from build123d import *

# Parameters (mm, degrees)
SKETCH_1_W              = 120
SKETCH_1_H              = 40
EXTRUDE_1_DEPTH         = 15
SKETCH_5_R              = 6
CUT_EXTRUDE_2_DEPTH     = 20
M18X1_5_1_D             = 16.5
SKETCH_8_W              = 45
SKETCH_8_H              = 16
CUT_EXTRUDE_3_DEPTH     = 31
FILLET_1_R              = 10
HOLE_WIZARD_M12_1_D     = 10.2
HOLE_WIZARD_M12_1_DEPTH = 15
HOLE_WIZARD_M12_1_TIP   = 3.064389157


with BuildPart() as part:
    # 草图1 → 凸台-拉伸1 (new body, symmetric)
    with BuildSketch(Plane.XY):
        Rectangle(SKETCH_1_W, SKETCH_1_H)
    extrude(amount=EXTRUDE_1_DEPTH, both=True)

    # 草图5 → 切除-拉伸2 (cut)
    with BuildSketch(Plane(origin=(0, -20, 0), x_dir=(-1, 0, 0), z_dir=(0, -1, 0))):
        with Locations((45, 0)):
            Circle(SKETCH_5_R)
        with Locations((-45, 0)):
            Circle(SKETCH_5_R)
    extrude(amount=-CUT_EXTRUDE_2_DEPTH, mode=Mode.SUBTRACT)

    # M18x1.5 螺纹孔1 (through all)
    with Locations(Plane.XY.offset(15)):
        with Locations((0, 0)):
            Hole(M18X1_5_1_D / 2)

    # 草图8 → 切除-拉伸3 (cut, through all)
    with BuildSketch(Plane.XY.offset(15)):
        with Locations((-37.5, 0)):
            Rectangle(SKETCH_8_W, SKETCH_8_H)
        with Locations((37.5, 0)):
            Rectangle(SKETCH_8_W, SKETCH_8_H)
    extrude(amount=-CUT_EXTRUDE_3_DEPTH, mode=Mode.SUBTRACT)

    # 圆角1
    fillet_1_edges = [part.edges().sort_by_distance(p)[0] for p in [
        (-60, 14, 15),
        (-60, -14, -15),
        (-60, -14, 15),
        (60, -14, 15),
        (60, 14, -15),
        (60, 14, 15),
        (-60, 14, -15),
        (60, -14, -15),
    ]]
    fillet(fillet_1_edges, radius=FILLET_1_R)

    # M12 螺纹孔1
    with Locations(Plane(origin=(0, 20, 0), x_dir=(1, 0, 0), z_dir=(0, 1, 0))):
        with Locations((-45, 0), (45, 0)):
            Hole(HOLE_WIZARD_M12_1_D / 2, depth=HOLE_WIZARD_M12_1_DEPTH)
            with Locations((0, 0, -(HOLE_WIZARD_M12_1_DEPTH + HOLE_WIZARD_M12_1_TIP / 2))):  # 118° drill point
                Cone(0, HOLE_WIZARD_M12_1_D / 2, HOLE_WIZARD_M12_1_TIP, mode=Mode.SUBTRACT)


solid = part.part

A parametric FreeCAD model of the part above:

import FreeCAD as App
import Part
import Sketcher


def edges_at(feature, points):
    """Names of the edges that pass closest to the given points."""
    edges = feature.Shape.Edges
    near = lambda p: min(range(len(edges)), key=lambda i: edges[i].distToShape(Part.Vertex(*p))[0])
    return sorted({f"Edge{near(p) + 1}" for p in points})


def add_polygon(sketch, points):
    """Adds a closed chain of lines whose ends are joined by coincident constraints."""
    first, n = sketch.GeometryCount, len(points)
    for a, b in zip(points, points[1:] + points[:1]):
        sketch.addGeometry(Part.LineSegment(App.Vector(*a, 0), App.Vector(*b, 0)), False)
    for i in range(n):
        sketch.addConstraint(Sketcher.Constraint("Coincident", first + i, 2, first + (i + 1) % n, 1))

doc = App.newDocument("Part")
body = doc.addObject("PartDesign::Body", "Body")

sketch1 = body.newObject("Sketcher::SketchObject", "Sketch")
sketch1.AttachmentSupport = (doc.getObject("XY_Plane"), [""])
sketch1.MapMode = "FlatFace"
add_polygon(sketch1, [(-60, 20), (-60, -20), (60, -20), (60, 20)])
sketch1.addConstraint(Sketcher.Constraint("Vertical", 0))
sketch1.addConstraint(Sketcher.Constraint("Horizontal", 1))
sketch1.addConstraint(Sketcher.Constraint("Vertical", 2))
sketch1.addConstraint(Sketcher.Constraint("Horizontal", 3))
sketch1.addConstraint(Sketcher.Constraint("Symmetric", 0, 2, 2, 2, -1, 1))
sketch1.addConstraint(Sketcher.Constraint("DistanceX", 1, 1, 1, 2, 120.0))
sketch1.addConstraint(Sketcher.Constraint("DistanceY", 0, 2, 0, 1, 40.0))
pad1 = body.newObject("PartDesign::Pad", "Pad")
pad1.Profile = sketch1
pad1.Length = 30
pad1.Midplane = True

sketch2 = body.newObject("Sketcher::SketchObject", "Sketch001")
sketch2.AttachmentSupport = (doc.getObject("XZ_Plane"), [""])
sketch2.MapMode = "FlatFace"
sketch2.AttachmentOffset = App.Placement(App.Vector(0, 0, 20), App.Rotation())
sketch2.addGeometry(Part.Circle(App.Vector(-45, 0, 0), App.Vector(0, 0, 1), 6), False)
sketch2.addGeometry(Part.Circle(App.Vector(45, 0, 0), App.Vector(0, 0, 1), 6), False)
sketch2.addConstraint(Sketcher.Constraint("Equal", 0, 1))
sketch2.addConstraint(Sketcher.Constraint("Symmetric", 0, 3, 1, 3, -1, 1))
sketch2.addConstraint(Sketcher.Constraint("PointOnObject", 0, 3, -1))
sketch2.addConstraint(Sketcher.Constraint("Diameter", 0, 12.0))
sketch2.addConstraint(Sketcher.Constraint("DistanceX", 0, 3, -1, 1, 45.0))
pocket1 = body.newObject("PartDesign::Pocket", "Pocket")
pocket1.Profile = sketch2
pocket1.Length = 20

sketch3 = body.newObject("Sketcher::SketchObject", "Sketch002")
sketch3.AttachmentSupport = (doc.getObject("XY_Plane"), [""])
sketch3.MapMode = "FlatFace"
sketch3.AttachmentOffset = App.Placement(App.Vector(0, 0, 15), App.Rotation())
sketch3.addGeometry(Part.Circle(App.Vector(0, 0, 0), App.Vector(0, 0, 1), 8), False)
sketch3.addConstraint(Sketcher.Constraint("Coincident", 0, 3, -1, 1))
sketch3.addConstraint(Sketcher.Constraint("Diameter", 0, 16.5))
doc.recompute()
hole = body.newObject("PartDesign::Hole", "Hole")
hole.Profile = sketch3
hole.ThreadType = "None"
hole.Diameter = 16.5
hole.DepthType = "ThroughAll"

sketch4 = body.newObject("Sketcher::SketchObject", "Sketch003")
sketch4.AttachmentSupport = (doc.getObject("XY_Plane"), [""])
sketch4.MapMode = "FlatFace"
sketch4.AttachmentOffset = App.Placement(App.Vector(0, 0, 15), App.Rotation())
add_polygon(sketch4, [(-60, 8), (-60, -8), (-15, -8), (-15, 8)])
add_polygon(sketch4, [(15, 8), (15, -8), (60, -8), (60, 8)])
sketch4.addConstraint(Sketcher.Constraint("Vertical", 0))
sketch4.addConstraint(Sketcher.Constraint("Horizontal", 1))
sketch4.addConstraint(Sketcher.Constraint("Vertical", 2))
sketch4.addConstraint(Sketcher.Constraint("Horizontal", 3))
sketch4.addConstraint(Sketcher.Constraint("Vertical", 4))
sketch4.addConstraint(Sketcher.Constraint("Horizontal", 5))
sketch4.addConstraint(Sketcher.Constraint("Vertical", 6))
sketch4.addConstraint(Sketcher.Constraint("Horizontal", 7))
sketch4.addConstraint(Sketcher.Constraint("Symmetric", 2, 2, 4, 2, -1, 1))
sketch4.addConstraint(Sketcher.Constraint("Symmetric", 0, 2, 6, 2, -1, 1))
sketch4.addConstraint(Sketcher.Constraint("Horizontal", 1, 2, 4, 2))
sketch4.addConstraint(Sketcher.Constraint("DistanceX", 1, 1, 1, 2, 45.0))
sketch4.addConstraint(Sketcher.Constraint("DistanceY", 0, 2, 0, 1, 16.0))
sketch4.addConstraint(Sketcher.Constraint("DistanceX", 0, 2, -1, 1, 60.0))
pocket2 = body.newObject("PartDesign::Pocket", "Pocket001")
pocket2.Profile = sketch4
pocket2.Type = "ThroughAll"
doc.recompute()

fillet = body.newObject("PartDesign::Fillet", "Fillet")
fillet.Base = (pocket2, edges_at(pocket2, [
    (-60, 14, 15),
    (-60, -14, -15),
    (-60, -14, 15),
    (60, -14, 15),
    (60, 14, -15),
    (60, 14, 15),
    (-60, 14, -15),
    (60, -14, -15),
]))
fillet.Radius = 10

sketch5 = body.newObject("Sketcher::SketchObject", "Sketch004")
sketch5.AttachmentSupport = (doc.getObject("XZ_Plane"), [""])
sketch5.MapMode = "FlatFace"
sketch5.AttachmentOffset = App.Placement(App.Vector(0, 0, -20), App.Rotation())
sketch5.addGeometry(Part.Circle(App.Vector(-45, 0, 0), App.Vector(0, 0, 1), 5), False)
sketch5.addGeometry(Part.Circle(App.Vector(45, 0, 0), App.Vector(0, 0, 1), 5), False)
sketch5.addConstraint(Sketcher.Constraint("Equal", 0, 1))
sketch5.addConstraint(Sketcher.Constraint("Symmetric", 0, 3, 1, 3, -1, 1))
sketch5.addConstraint(Sketcher.Constraint("PointOnObject", 0, 3, -1))
sketch5.addConstraint(Sketcher.Constraint("Diameter", 0, 10.2))
sketch5.addConstraint(Sketcher.Constraint("DistanceX", 0, 3, -1, 1, 45.0))
doc.recompute()
hole2 = body.newObject("PartDesign::Hole", "Hole001")
hole2.Profile = sketch5
hole2.ThreadType = "None"
hole2.Diameter = 10.2
hole2.DepthType = "Dimension"
hole2.Depth = 15
hole2.DrillPoint = "Angled"
hole2.DrillPointAngle = 118
hole2.Reversed = True

doc.recompute()
